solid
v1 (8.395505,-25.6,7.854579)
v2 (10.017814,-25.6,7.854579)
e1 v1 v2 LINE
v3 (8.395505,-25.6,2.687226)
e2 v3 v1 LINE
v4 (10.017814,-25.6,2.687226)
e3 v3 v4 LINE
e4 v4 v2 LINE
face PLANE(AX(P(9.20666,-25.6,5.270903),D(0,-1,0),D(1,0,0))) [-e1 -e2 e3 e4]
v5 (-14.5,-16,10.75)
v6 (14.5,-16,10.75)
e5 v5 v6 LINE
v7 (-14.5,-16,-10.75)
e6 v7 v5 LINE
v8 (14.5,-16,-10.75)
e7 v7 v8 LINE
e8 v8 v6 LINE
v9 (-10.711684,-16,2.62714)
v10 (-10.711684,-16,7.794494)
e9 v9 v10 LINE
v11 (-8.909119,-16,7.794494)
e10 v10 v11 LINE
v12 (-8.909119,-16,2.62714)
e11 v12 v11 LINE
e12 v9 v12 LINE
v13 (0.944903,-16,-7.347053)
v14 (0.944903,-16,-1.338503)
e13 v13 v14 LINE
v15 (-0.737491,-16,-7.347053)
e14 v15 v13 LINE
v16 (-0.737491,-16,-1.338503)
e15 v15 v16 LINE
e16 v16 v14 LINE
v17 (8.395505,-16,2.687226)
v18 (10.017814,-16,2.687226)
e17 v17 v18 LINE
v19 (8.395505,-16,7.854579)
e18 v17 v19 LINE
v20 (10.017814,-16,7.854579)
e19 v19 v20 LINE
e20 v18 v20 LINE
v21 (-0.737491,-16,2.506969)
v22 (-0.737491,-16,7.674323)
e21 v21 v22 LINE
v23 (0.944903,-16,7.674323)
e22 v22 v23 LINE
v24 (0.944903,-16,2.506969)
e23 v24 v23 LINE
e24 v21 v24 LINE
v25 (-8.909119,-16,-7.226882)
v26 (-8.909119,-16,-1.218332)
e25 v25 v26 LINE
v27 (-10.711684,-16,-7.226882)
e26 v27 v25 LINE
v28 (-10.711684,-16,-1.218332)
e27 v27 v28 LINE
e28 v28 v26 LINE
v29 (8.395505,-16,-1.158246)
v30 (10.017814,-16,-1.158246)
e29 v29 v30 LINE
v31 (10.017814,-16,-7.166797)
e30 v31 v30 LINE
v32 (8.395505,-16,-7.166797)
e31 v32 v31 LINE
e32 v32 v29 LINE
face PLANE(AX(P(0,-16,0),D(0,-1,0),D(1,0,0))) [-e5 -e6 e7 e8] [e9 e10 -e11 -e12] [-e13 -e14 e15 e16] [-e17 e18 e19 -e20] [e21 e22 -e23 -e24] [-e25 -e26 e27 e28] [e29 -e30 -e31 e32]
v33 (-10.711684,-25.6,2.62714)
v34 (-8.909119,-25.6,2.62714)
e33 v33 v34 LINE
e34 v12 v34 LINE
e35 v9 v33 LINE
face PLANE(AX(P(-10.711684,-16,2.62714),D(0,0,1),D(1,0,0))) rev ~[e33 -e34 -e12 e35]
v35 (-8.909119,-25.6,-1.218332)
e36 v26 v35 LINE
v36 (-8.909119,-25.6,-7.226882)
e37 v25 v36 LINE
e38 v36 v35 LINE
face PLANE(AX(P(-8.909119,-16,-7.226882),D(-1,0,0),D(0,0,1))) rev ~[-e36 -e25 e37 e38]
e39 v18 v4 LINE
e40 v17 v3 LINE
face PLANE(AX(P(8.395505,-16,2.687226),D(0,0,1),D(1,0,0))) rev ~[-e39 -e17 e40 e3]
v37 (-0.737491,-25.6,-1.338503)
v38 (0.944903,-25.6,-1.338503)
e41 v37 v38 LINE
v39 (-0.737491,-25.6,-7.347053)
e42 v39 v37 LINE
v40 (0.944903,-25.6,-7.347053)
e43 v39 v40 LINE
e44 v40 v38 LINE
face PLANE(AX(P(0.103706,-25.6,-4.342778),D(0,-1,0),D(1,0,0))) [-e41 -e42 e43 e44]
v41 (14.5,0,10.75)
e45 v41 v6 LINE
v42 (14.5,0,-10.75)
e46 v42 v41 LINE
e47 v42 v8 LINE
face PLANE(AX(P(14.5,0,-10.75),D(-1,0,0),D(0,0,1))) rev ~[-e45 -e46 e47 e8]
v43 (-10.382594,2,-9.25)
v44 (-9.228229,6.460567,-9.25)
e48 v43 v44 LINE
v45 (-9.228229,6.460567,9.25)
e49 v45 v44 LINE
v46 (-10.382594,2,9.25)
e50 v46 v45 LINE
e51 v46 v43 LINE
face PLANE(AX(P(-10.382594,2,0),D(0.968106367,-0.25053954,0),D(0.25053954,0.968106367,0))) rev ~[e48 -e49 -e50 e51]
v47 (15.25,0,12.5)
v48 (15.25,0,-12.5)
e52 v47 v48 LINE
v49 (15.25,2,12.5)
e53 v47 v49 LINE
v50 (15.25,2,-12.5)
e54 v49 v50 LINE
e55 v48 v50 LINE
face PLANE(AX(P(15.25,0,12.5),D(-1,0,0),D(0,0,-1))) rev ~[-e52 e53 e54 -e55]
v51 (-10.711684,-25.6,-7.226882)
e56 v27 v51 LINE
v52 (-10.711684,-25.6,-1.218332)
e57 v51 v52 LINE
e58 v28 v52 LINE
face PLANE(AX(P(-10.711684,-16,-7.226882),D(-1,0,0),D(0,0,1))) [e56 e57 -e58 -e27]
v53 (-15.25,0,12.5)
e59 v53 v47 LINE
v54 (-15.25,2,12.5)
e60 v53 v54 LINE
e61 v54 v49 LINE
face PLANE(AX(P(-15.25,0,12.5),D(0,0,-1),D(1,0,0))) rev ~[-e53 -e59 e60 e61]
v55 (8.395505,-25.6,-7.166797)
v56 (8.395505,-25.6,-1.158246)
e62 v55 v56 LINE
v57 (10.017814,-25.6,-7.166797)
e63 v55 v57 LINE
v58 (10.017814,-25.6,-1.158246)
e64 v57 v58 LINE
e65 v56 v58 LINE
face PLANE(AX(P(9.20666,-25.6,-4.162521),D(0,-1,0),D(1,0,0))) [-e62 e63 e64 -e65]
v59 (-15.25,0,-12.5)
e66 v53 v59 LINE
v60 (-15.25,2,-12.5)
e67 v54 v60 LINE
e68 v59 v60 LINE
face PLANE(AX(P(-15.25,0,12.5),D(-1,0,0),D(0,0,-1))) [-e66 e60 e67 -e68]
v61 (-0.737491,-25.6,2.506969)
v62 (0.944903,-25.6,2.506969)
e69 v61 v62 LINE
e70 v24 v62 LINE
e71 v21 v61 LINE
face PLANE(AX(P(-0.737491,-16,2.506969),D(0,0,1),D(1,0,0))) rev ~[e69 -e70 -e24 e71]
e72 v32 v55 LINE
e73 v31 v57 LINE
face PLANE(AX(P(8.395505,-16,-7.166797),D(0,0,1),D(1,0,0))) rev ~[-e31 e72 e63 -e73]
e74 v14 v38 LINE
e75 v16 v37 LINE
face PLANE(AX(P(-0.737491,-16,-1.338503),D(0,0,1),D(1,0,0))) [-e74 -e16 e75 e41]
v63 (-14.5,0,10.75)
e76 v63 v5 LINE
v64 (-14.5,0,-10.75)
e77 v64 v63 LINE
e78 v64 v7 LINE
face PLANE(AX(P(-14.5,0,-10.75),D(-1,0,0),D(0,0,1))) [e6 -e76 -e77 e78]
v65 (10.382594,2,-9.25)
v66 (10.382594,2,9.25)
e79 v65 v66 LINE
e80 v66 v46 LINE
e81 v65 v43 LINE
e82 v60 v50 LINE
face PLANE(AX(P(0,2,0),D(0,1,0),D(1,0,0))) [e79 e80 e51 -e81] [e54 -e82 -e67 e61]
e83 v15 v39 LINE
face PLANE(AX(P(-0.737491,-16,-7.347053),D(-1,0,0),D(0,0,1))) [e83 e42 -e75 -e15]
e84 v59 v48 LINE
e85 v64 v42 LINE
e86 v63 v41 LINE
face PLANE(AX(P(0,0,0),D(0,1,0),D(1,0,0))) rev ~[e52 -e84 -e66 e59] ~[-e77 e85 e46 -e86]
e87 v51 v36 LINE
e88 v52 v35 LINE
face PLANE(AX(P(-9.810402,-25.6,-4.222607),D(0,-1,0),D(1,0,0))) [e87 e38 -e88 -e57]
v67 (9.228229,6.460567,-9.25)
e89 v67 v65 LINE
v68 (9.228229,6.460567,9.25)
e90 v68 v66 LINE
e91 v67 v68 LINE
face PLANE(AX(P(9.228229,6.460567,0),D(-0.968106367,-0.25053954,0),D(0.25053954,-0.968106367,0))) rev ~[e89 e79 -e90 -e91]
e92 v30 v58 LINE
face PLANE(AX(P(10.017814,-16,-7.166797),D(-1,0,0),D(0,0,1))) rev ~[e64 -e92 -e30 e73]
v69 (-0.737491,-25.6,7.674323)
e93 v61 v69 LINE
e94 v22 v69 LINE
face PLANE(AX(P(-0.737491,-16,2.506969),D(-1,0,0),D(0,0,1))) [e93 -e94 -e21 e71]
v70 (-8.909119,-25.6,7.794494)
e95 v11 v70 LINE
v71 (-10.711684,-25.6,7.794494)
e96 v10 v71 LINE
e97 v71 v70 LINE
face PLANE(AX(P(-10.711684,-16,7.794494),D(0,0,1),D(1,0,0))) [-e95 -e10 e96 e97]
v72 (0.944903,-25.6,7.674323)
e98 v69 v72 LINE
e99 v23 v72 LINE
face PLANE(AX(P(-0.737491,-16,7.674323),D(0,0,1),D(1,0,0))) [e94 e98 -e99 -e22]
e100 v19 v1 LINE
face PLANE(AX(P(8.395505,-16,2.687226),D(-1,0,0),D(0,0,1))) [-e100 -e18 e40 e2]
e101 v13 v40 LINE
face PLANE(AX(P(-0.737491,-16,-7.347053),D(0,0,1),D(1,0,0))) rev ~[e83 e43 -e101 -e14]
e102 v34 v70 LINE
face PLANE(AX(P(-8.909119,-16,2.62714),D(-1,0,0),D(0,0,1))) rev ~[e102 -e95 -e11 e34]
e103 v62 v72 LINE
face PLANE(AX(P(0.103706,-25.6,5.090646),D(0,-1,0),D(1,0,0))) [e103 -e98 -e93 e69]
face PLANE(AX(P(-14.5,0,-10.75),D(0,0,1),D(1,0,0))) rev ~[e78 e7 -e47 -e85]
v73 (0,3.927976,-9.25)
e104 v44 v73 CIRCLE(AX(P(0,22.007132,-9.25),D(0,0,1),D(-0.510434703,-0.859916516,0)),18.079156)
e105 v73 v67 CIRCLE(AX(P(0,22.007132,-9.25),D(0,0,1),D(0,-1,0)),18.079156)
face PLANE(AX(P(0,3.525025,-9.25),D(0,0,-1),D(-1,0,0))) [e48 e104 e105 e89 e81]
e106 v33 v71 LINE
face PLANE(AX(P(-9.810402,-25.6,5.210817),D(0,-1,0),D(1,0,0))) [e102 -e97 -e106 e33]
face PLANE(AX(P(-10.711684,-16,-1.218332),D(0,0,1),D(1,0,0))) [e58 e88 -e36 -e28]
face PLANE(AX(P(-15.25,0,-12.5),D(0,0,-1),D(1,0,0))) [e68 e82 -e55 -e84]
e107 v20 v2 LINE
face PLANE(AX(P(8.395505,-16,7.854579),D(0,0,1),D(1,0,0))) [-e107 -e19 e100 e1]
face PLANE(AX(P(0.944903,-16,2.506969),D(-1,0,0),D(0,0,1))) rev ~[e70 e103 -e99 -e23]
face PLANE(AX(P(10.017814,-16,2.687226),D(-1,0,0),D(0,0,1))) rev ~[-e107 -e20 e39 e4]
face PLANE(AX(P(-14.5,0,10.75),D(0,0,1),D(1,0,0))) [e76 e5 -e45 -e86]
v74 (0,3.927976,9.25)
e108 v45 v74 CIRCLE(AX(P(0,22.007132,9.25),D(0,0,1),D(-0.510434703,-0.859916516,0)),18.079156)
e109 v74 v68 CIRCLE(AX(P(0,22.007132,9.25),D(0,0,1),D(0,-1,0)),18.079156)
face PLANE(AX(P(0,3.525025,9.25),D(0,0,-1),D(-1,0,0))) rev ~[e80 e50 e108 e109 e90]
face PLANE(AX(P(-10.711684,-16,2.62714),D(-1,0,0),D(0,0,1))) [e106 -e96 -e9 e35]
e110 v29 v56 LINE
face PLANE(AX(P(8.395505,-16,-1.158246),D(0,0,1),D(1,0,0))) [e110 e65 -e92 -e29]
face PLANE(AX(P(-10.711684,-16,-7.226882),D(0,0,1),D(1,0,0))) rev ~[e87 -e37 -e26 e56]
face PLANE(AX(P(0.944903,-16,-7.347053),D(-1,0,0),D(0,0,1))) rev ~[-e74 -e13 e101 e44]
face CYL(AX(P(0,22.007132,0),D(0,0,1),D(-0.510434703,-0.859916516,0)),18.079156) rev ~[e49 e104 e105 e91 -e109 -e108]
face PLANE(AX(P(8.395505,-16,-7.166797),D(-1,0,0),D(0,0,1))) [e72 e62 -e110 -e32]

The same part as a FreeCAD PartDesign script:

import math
import FreeCAD as App
import Part
import Sketcher

V = App.Vector

doc = App.newDocument("Part")
body = doc.addObject("PartDesign::Body", "Body")

sketch1 = body.newObject("Sketcher::SketchObject", "Sketch")
sketch1.AttachmentSupport = (doc.getObject("XZ_Plane"), [""])
sketch1.MapMode = "FlatFace"
sketch1.addGeometry(Part.LineSegment(V(-15.25, -12.5, 0), V(-15.25, 12.5, 0)), False)
sketch1.addGeometry(Part.LineSegment(V(-15.25, 12.5, 0), V(15.25, 12.5, 0)), False)
sketch1.addGeometry(Part.LineSegment(V(15.25, 12.5, 0), V(15.25, -12.5, 0)), False)
sketch1.addGeometry(Part.LineSegment(V(15.25, -12.5, 0), V(-15.25, -12.5, 0)), False)
sketch1.addConstraint(Sketcher.Constraint("Coincident", 0, 2, 1, 1))
sketch1.addConstraint(Sketcher.Constraint("Coincident", 1, 2, 2, 1))
sketch1.addConstraint(Sketcher.Constraint("Coincident", 2, 2, 3, 1))
sketch1.addConstraint(Sketcher.Constraint("Coincident", 3, 2, 0, 1))
sketch1.addConstraint(Sketcher.Constraint("Vertical", 0))
sketch1.addConstraint(Sketcher.Constraint("Horizontal", 1))
sketch1.addConstraint(Sketcher.Constraint("Vertical", 2))
sketch1.addConstraint(Sketcher.Constraint("Horizontal", 3))
sketch1.addConstraint(Sketcher.Constraint("Symmetric", 0, 2, 2, 2, -1, 1))
sketch1.addConstraint(Sketcher.Constraint("DistanceY", 0, 1, 0, 2, 25.0))
sketch1.addConstraint(Sketcher.Constraint("DistanceX", 1, 1, 1, 2, 30.5))
pad1 = body.newObject("PartDesign::Pad", "Pad")
pad1.Profile = sketch1
pad1.Length = 2
pad1.Reversed = True

sketch2 = body.newObject("Sketcher::SketchObject", "Sketch001")
sketch2.AttachmentSupport = (doc.getObject("XZ_Plane"), [""])
sketch2.MapMode = "FlatFace"
sketch2.addGeometry(Part.LineSegment(V(-14.5, 10.75, 0), V(-14.5, -10.75, 0)), False)
sketch2.addGeometry(Part.LineSegment(V(-14.5, -10.75, 0), V(14.5, -10.75, 0)), False)
sketch2.addGeometry(Part.LineSegment(V(14.5, -10.75, 0), V(14.5, 10.75, 0)), False)
sketch2.addGeometry(Part.LineSegment(V(14.5, 10.75, 0), V(-14.5, 10.75, 0)), False)
sketch2.addConstraint(Sketcher.Constraint("Coincident", 0, 2, 1, 1))
sketch2.addConstraint(Sketcher.Constraint("Coincident", 1, 2, 2, 1))
sketch2.addConstraint(Sketcher.Constraint("Coincident", 2, 2, 3, 1))
sketch2.addConstraint(Sketcher.Constraint("Coincident", 3, 2, 0, 1))
sketch2.addConstraint(Sketcher.Constraint("Vertical", 0))
sketch2.addConstraint(Sketcher.Constraint("Horizontal", 1))
sketch2.addConstraint(Sketcher.Constraint("Vertical", 2))
sketch2.addConstraint(Sketcher.Constraint("Horizontal", 3))
sketch2.addConstraint(Sketcher.Constraint("Symmetric", 0, 2, 2, 2, -1, 1))
sketch2.addConstraint(Sketcher.Constraint("DistanceX", 1, 1, 1, 2, 29.0))
sketch2.addConstraint(Sketcher.Constraint("DistanceY", 0, 2, 0, 1, 21.5))
pad2 = body.newObject("PartDesign::Pad", "Pad001")
pad2.Profile = sketch2
pad2.Length = 16

sketch3 = body.newObject("Sketcher::SketchObject", "Sketch002")
sketch3.AttachmentSupport = (doc.getObject("XZ_Plane"), [""])
sketch3.MapMode = "FlatFace"
sketch3.AttachmentOffset = App.Placement(V(0, 0, 16), App.Rotation())
sketch3.addGeometry(Part.LineSegment(V(-10.711684, 7.794494, 0), V(-10.711684, 2.62714, 0)), False)
sketch3.addGeometry(Part.LineSegment(V(-10.711684, 2.62714, 0), V(-8.909119, 2.62714, 0)), False)
sketch3.addGeometry(Part.LineSegment(V(-8.909119, 2.62714, 0), V(-8.909119, 7.794494, 0)), False)
sketch3.addGeometry(Part.LineSegment(V(-8.909119, 7.794494, 0), V(-10.711684, 7.794494, 0)), False)
sketch3.addGeometry(Part.LineSegment(V(-10.711684, -1.218332, 0), V(-10.711684, -7.226882, 0)), False)
sketch3.addGeometry(Part.LineSegment(V(-10.711684, -7.226882, 0), V(-8.909119, -7.226882, 0)), False)
sketch3.addGeometry(Part.LineSegment(V(-8.909119, -7.226882, 0), V(-8.909119, -1.218332, 0)), False)
sketch3.addGeometry(Part.LineSegment(V(-8.909119, -1.218332, 0), V(-10.711684, -1.218332, 0)), False)
sketch3.addGeometry(Part.LineSegment(V(-0.737491, 7.674323, 0), V(-0.737491, 2.506969, 0)), False)
sketch3.addGeometry(Part.LineSegment(V(-0.737491, 2.506969, 0), V(0.944903, 2.506969, 0)), False)
sketch3.addGeometry(Part.LineSegment(V(0.944903, 2.506969, 0), V(0.944903, 7.674323, 0)), False)
sketch3.addGeometry(Part.LineSegment(V(0.944903, 7.674323, 0), V(-0.737491, 7.674323, 0)), False)
sketch3.addGeometry(Part.LineSegment(V(-0.737491, -1.338503, 0), V(-0.737491, -7.347053, 0)), False)
sketch3.addGeometry(Part.LineSegment(V(-0.737491, -7.347053, 0), V(0.944903, -7.347053, 0)), False)
sketch3.addGeometry(Part.LineSegment(V(0.944903, -7.347053, 0), V(0.944903, -1.338503, 0)), False)
sketch3.addGeometry(Part.LineSegment(V(0.944903, -1.338503, 0), V(-0.737491, -1.338503, 0)), False)
sketch3.addGeometry(Part.LineSegment(V(8.395505, 7.854579, 0), V(8.395505, 2.687226, 0)), False)
sketch3.addGeometry(Part.LineSegment(V(8.395505, 2.687226, 0), V(10.017814, 2.687226, 0)), False)
sketch3.addGeometry(Part.LineSegment(V(10.017814, 2.687226, 0), V(10.017814, 7.854579, 0)), False)
sketch3.addGeometry(Part.LineSegment(V(10.017814, 7.854579, 0), V(8.395505, 7.854579, 0)), False)
sketch3.addGeometry(Part.LineSegment(V(8.395505, -1.158246, 0), V(8.395505, -7.166797, 0)), False)
sketch3.addGeometry(Part.LineSegment(V(8.395505, -7.166797, 0), V(10.017814, -7.166797, 0)), False)
sketch3.addGeometry(Part.LineSegment(V(10.017814, -7.166797, 0), V(10.017814, -1.158246, 0)), False)
sketch3.addGeometry(Part.LineSegment(V(10.017814, -1.158246, 0), V(8.395505, -1.158246, 0)), False)
sketch3.addConstraint(Sketcher.Constraint("Coincident", 0, 2, 1, 1))
sketch3.addConstraint(Sketcher.Constraint("Coincident", 1, 2, 2, 1))
sketch3.addConstraint(Sketcher.Constraint("Coincident", 2, 2, 3, 1))
sketch3.addConstraint(Sketcher.Constraint("Coincident", 3, 2, 0, 1))
sketch3.addConstraint(Sketcher.Constraint("Coincident", 4, 2, 5, 1))
sketch3.addConstraint(Sketcher.Constraint("Coincident", 5, 2, 6, 1))
sketch3.addConstraint(Sketcher.Constraint("Coincident", 6, 2, 7, 1))
sketch3.addConstraint(Sketcher.Constraint("Coincident", 7, 2, 4, 1))
sketch3.addConstraint(Sketcher.Constraint("Coincident", 8, 2, 9, 1))
sketch3.addConstraint(Sketcher.Constraint("Coincident", 9, 2, 10, 1))
sketch3.addConstraint(Sketcher.Constraint("Coincident", 10, 2, 11, 1))
sketch3.addConstraint(Sketcher.Constraint("Coincident", 11, 2, 8, 1))
sketch3.addConstraint(Sketcher.Constraint("Coincident", 12, 2, 13, 1))
sketch3.addConstraint(Sketcher.Constraint("Coincident", 13, 2, 14, 1))
sketch3.addConstraint(Sketcher.Constraint("Coincident", 14, 2, 15, 1))
sketch3.addConstraint(Sketcher.Constraint("Coincident", 15, 2, 12, 1))
sketch3.addConstraint(Sketcher.Constraint("Coincident", 16, 2, 17, 1))
sketch3.addConstraint(Sketcher.Constraint("Coincident", 17, 2, 18, 1))
sketch3.addConstraint(Sketcher.Constraint("Coincident", 18, 2, 19, 1))
sketch3.addConstraint(Sketcher.Constraint("Coincident", 19, 2, 16, 1))
sketch3.addConstraint(Sketcher.Constraint("Coincident", 20, 2, 21, 1))
sketch3.addConstraint(Sketcher.Constraint("Coincident", 21, 2, 22, 1))
sketch3.addConstraint(Sketcher.Constraint("Coincident", 22, 2, 23, 1))
sketch3.addConstraint(Sketcher.Constraint("Coincident", 23, 2, 20, 1))
sketch3.addConstraint(Sketcher.Constraint("Vertical", 0))
sketch3.addConstraint(Sketcher.Constraint("Horizontal", 1))
sketch3.addConstraint(Sketcher.Constraint("Vertical", 2))
sketch3.addConstraint(Sketcher.Constraint("Horizontal", 3))
sketch3.addConstraint(Sketcher.Constraint("Vertical", 4))
sketch3.addConstraint(Sketcher.Constraint("Horizontal", 5))
sketch3.addConstraint(Sketcher.Constraint("Vertical", 6))
sketch3.addConstraint(Sketcher.Constraint("Horizontal", 7))
sketch3.addConstraint(Sketcher.Constraint("Vertical", 8))
sketch3.addConstraint(Sketcher.Constraint("Horizontal", 9))
sketch3.addConstraint(Sketcher.Constraint("Vertical", 10))
sketch3.addConstraint(Sketcher.Constraint("Horizontal", 11))
sketch3.addConstraint(Sketcher.Constraint("Vertical", 12))
sketch3.addConstraint(Sketcher.Constraint("Horizontal", 13))
sketch3.addConstraint(Sketcher.Constraint("Vertical", 14))
sketch3.addConstraint(Sketcher.Constraint("Horizontal", 15))
sketch3.addConstraint(Sketcher.Constraint("Vertical", 16))
sketch3.addConstraint(Sketcher.Constraint("Horizontal", 17))
sketch3.addConstraint(Sketcher.Constraint("Vertical", 18))
sketch3.addConstraint(Sketcher.Constraint("Horizontal", 19))
sketch3.addConstraint(Sketcher.Constraint("Vertical", 20))
sketch3.addConstraint(Sketcher.Constraint("Horizontal", 21))
sketch3.addConstraint(Sketcher.Constraint("Vertical", 22))
sketch3.addConstraint(Sketcher.Constraint("Horizontal", 23))
sketch3.addConstraint(Sketcher.Constraint("Vertical", 3, 2, 4, 2))
sketch3.addConstraint(Sketcher.Constraint("Vertical", 2, 2, 5, 2))
sketch3.addConstraint(Sketcher.Constraint("Vertical", 11, 2, 12, 2))
sketch3.addConstraint(Sketcher.Constraint("Vertical", 10, 2, 13, 2))
sketch3.addConstraint(Sketcher.Constraint("Vertical", 19, 2, 20, 2))
sketch3.addConstraint(Sketcher.Constraint("Vertical", 18, 2, 21, 2))
sketch3.addConstraint(Sketcher.Constraint("Equal", 2, 8))
sketch3.addConstraint(Sketcher.Constraint("Equal", 6, 12))
sketch3.addConstraint(Sketcher.Constraint("Equal", 10, 16))
sketch3.addConstraint(Sketcher.Constraint("Equal", 14, 20))
sketch3.addConstraint(Sketcher.Constraint("DistanceX", 17, 1, 17, 2, 1.622309))
sketch3.addConstraint(Sketcher.Constraint("DistanceY", 4, 2, 4, 1, 6.00855))
sketch3.addConstraint(Sketcher.Constraint("DistanceY", 6, 2, 8, 2, 3.725301))
sketch3.addConstraint(Sketcher.Constraint("DistanceX", 1, 1, 1, 2, 1.802565))
sketch3.addConstraint(Sketcher.Constraint("DistanceX", 9, 1, 9, 2, 1.682394))
sketch3.addConstraint(Sketcher.Constraint("DistanceY", 0, 2, 0, 1, 5.167353))
sketch3.addConstraint(Sketcher.Constraint("DistanceY", -1, 1, 0, 2, 2.62714))
sketch3.addConstraint(Sketcher.Constraint("DistanceX", 1, 2, -1, 1, 8.909119))
sketch3.addConstraint(Sketcher.Constraint("DistanceY", 6, 2, -1, 1, 1.218332))
sketch3.addConstraint(Sketcher.Constraint("DistanceX", 8, 2, -1, 1, 0.737491))
sketch3.addConstraint(Sketcher.Constraint("DistanceY", -1, 1, 18, 2, 7.854579))
sketch3.addConstraint(Sketcher.Constraint("DistanceY", 12, 2, 5, 2, 0.120171))
sketch3.addConstraint(Sketcher.Constraint("DistanceX", 9, 2, 17, 2, 9.072911))
sketch3.addConstraint(Sketcher.Constraint("DistanceY", 20, 2, -1, 1, 7.166797))
pad3 = body.newObject("PartDesign::Pad", "Pad002")
pad3.Profile = sketch3
pad3.Length = 9.6

sketch4 = body.newObject("Sketcher::SketchObject", "Sketch003")
sketch4.AttachmentSupport = (doc.getObject("XY_Plane"), [""])
sketch4.MapMode = "FlatFace"
sketch4.addGeometry(Part.LineSegment(V(-10.382594, 2, 0), V(10.382594, 2, 0)), False)
sketch4.addGeometry(Part.LineSegment(V(10.382594, 2, 0), V(9.228229, 6.460567, 0)), False)
sketch4.addGeometry(Part.ArcOfCircle(Part.Circle(V(0, 22.007132, 0), V(0, 0, 1), 18.079156), math.radians(-90), math.radians(-59.307211)), False)
sketch4.addGeometry(Part.ArcOfCircle(Part.Circle(V(0, 22.007132, 0), V(0, 0, 1), 18.079156), math.radians(-120.692789), math.radians(-90)), False)
sketch4.addGeometry(Part.LineSegment(V(-9.228229, 6.460567, 0), V(-10.382594, 2, 0)), False)
sketch4.addConstraint(Sketcher.Constraint("Coincident", 0, 2, 1, 1))
sketch4.addConstraint(Sketcher.Constraint("Coincident", 1, 2, 2, 2))
sketch4.addConstraint(Sketcher.Constraint("Tangent", 2, 1, 3, 2))
sketch4.addConstraint(Sketcher.Constraint("Coincident", 3, 1, 4, 1))
sketch4.addConstraint(Sketcher.Constraint("Coincident", 4, 2, 0, 1))
sketch4.addConstraint(Sketcher.Constraint("Horizontal", 0))
sketch4.addConstraint(Sketcher.Constraint("Equal", 2, 3))
sketch4.addConstraint(Sketcher.Constraint("Symmetric", 1, 2, 3, 1, -2))
sketch4.addConstraint(Sketcher.Constraint("PointOnObject", 2, 1, -2))
sketch4.addConstraint(Sketcher.Constraint("Equal", 1, 4))
sketch4.addConstraint(Sketcher.Constraint("DistanceY", -1, 1, 0, 2, 2.0))
sketch4.addConstraint(Sketcher.Constraint("Radius", 2, 18.079156))
sketch4.addConstraint(Sketcher.Constraint("DistanceX", 0, 1, 0, 2, 20.765188))
sketch4.addConstraint(Sketcher.Constraint("DistanceX", -1, 1, 1, 2, 9.228229))
sketch4.addConstraint(Sketcher.Constraint("Distance", 1, 4.607517))
pad4 = body.newObject("PartDesign::Pad", "Pad003")
pad4.Profile = sketch4
pad4.Length = 18.5
pad4.Midplane = True

doc.recompute()
